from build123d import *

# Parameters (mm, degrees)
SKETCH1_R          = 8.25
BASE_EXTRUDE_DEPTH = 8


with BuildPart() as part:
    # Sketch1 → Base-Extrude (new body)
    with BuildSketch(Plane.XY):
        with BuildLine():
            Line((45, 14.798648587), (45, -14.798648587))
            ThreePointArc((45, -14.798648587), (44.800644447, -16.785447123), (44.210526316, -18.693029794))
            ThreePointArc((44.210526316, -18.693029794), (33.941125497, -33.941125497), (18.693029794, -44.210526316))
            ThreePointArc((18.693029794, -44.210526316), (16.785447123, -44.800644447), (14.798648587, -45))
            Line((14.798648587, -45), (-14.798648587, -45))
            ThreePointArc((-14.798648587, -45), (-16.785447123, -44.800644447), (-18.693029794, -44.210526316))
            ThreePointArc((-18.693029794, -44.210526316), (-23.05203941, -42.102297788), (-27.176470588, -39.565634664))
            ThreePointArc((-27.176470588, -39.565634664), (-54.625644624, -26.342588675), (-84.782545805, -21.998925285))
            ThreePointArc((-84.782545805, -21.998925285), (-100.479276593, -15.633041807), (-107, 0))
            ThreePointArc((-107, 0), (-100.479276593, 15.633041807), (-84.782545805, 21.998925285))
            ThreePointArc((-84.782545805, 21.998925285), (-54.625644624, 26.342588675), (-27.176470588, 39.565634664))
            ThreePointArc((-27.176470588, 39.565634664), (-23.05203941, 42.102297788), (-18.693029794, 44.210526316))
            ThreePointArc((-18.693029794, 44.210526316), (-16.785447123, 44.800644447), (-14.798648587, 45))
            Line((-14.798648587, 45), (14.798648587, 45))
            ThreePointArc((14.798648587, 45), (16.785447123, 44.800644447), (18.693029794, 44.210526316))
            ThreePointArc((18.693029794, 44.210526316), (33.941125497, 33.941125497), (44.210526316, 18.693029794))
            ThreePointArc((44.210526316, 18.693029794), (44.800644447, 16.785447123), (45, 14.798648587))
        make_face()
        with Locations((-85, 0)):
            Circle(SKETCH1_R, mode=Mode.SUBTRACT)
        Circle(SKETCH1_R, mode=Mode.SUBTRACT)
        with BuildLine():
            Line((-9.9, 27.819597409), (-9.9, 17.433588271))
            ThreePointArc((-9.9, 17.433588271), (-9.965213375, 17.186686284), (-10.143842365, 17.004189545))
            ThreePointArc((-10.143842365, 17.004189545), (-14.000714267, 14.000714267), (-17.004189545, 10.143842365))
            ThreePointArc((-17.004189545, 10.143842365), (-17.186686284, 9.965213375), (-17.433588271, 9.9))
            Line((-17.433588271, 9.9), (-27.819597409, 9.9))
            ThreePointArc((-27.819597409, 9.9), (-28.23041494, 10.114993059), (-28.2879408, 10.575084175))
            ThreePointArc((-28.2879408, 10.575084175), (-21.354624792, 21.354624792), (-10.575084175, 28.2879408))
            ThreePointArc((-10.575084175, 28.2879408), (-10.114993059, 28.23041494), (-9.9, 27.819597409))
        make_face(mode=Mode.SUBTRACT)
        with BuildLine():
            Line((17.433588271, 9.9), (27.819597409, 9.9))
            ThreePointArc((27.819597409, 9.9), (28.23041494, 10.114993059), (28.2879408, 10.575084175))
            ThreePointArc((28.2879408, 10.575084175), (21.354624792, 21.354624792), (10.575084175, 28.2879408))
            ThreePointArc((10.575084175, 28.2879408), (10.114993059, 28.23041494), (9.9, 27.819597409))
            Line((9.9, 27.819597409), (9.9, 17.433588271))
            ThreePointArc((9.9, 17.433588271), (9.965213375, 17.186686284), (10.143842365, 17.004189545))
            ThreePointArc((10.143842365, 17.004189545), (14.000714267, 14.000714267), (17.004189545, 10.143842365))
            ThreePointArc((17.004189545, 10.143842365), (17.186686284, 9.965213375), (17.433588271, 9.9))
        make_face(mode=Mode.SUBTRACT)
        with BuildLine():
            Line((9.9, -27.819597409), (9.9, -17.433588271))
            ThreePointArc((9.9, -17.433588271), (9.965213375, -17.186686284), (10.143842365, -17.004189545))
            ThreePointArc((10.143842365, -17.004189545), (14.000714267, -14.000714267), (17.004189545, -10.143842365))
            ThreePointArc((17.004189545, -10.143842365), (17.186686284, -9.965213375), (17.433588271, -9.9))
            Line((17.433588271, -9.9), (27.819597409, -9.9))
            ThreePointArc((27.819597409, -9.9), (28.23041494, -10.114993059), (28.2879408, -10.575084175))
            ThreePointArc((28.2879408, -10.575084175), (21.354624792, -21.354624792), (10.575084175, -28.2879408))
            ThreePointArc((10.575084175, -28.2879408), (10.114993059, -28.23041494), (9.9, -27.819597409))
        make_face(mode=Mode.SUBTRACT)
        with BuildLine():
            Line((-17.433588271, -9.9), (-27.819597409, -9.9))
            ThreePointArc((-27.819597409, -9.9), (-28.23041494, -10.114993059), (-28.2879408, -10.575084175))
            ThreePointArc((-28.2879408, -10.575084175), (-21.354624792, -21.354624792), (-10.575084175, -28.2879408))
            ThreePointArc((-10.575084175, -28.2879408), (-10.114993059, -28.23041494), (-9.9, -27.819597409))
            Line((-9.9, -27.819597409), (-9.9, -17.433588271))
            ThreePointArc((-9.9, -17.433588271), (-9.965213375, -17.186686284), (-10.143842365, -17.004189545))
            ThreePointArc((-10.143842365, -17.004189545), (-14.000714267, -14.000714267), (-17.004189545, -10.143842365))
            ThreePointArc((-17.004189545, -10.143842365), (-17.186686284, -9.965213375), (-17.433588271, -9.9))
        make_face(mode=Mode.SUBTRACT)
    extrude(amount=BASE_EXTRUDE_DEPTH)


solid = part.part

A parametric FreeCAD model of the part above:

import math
import FreeCAD as App
import Part
import Sketcher

V = App.Vector
Q = App.Units.Quantity

doc = App.newDocument("Part")
body = doc.addObject("PartDesign::Body", "Body")

# Sketch on XY plane
sketch1 = doc.addObject("Sketcher::SketchObject", "Sketch")
body.addObject(sketch1)
sketch1.AttachmentSupport = (doc.XY_Plane, [""])
sketch1.MapMode = "FlatFace"
sketch1.addGeometry([
    Part.LineSegment(V(45, -14.798649, 0), V(45, 14.798649, 0)),  # 0
    Part.ArcOfCircle(Part.Circle(V(35, 14.798649, 0), V(0, 0, 1), 10), math.radians(0), math.radians(22.919542)),  # 1
    Part.ArcOfCircle(Part.Circle(V(0, 0, 0), V(0, 0, 1), 48), math.radians(22.919542), math.radians(67.080458)),  # 2
    Part.ArcOfCircle(Part.Circle(V(14.798649, 35, 0), V(0, 0, 1), 10), math.radians(67.080458), math.radians(90)),  # 3
    Part.LineSegment(V(14.798649, 45, 0), V(-14.798649, 45, 0)),  # 4
    Part.ArcOfCircle(Part.Circle(V(-14.798649, 35, 0), V(0, 0, 1), 10), math.radians(90), math.radians(112.919542)),  # 5
    Part.ArcOfCircle(Part.Circle(V(0, 0, 0), V(0, 0, 1), 48), math.radians(112.919542), math.radians(124.484027)),  # 6
    Part.ArcOfCircle(Part.Circle(V(-83.794118, 121.99404, 0), V(0, 0, 1), 100), math.radians(-90.566337), math.radians(-55.515973)),  # 7
    Part.ArcOfCircle(Part.Circle(V(-85, 0, 0), V(0, 0, 1), 22), math.radians(89.433663), math.radians(180)),  # 8
    Part.ArcOfCircle(Part.Circle(V(-85, 0, 0), V(0, 0, 1), 22), math.radians(-180), math.radians(-89.433663)),  # 9
    Part.ArcOfCircle(Part.Circle(V(-83.794118, -121.99404, 0), V(0, 0, 1), 100), math.radians(55.515973), math.radians(90.566337)),  # 10
    Part.ArcOfCircle(Part.Circle(V(0, 0, 0), V(0, 0, 1), 48), math.radians(-124.484027), math.radians(-112.919542)),  # 11
    Part.ArcOfCircle(Part.Circle(V(-14.798649, -35, 0), V(0, 0, 1), 10), math.radians(-112.919542), math.radians(-90)),  # 12
    Part.LineSegment(V(-14.798649, -45, 0), V(14.798649, -45, 0)),  # 13
    Part.ArcOfCircle(Part.Circle(V(14.798649, -35, 0), V(0, 0, 1), 10), math.radians(-90), math.radians(-67.080458)),  # 14
    Part.ArcOfCircle(Part.Circle(V(0, 0, 0), V(0, 0, 1), 48), math.radians(-67.080458), math.radians(-22.919542)),  # 15
    Part.ArcOfCircle(Part.Circle(V(35, -14.798649, 0), V(0, 0, 1), 10), math.radians(-22.919542), math.radians(0)),  # 16
    Part.LineSegment(V(9.9, -27.819597, 0), V(9.9, -17.433588, 0)),  # 17
    Part.ArcOfCircle(Part.Circle(V(10.4, -17.433588, 0), V(0, 0, 1), 0.5), math.radians(120.818172), math.radians(180)),  # 18
    Part.ArcOfCircle(Part.Circle(V(0, 0, 0), V(0, 0, 1), 19.8), math.radians(-59.181828), math.radians(-30.818172)),  # 19
    Part.ArcOfCircle(Part.Circle(V(17.433588, -10.4, 0), V(0, 0, 1), 0.5), math.radians(90), math.radians(149.181828)),  # 20
    Part.LineSegment(V(17.433588, -9.9, 0), V(27.819597, -9.9, 0)),  # 21
    Part.ArcOfCircle(Part.Circle(V(27.819597, -10.4, 0), V(0, 0, 1), 0.5), math.radians(-20.497612), math.radians(90)),  # 22
    Part.ArcOfCircle(Part.Circle(V(0, 0, 0), V(0, 0, 1), 30.2), math.radians(-69.502387), math.radians(-20.497613)),  # 23
    Part.ArcOfCircle(Part.Circle(V(10.4, -27.819597, 0), V(0, 0, 1), 0.5), math.radians(180), math.radians(290.497612)),  # 24
    Part.ArcOfCircle(Part.Circle(V(-17.433588, -10.4, 0), V(0, 0, 1), 0.5), math.radians(30.818172), math.radians(90)),  # 25
    Part.ArcOfCircle(Part.Circle(V(0, 0, 0), V(0, 0, 1), 19.8), math.radians(-149.181828), math.radians(-120.818172)),  # 26
    Part.ArcOfCircle(Part.Circle(V(-10.4, -17.433588, 0), V(0, 0, 1), 0.5), math.radians(0), math.radians(59.181828)),  # 27
    Part.LineSegment(V(-9.9, -17.433588, 0), V(-9.9, -27.819597, 0)),  # 28
    Part.ArcOfCircle(Part.Circle(V(-10.4, -27.819597, 0), V(0, 0, 1), 0.5), math.radians(-110.497612), math.radians(0)),  # 29
    Part.ArcOfCircle(Part.Circle(V(0, 0, 0), V(0, 0, 1), 30.2), math.radians(-159.502387), math.radians(-110.497613)),  # 30
    Part.ArcOfCircle(Part.Circle(V(-27.819597, -10.4, 0), V(0, 0, 1), 0.5), math.radians(90), math.radians(200.497612)),  # 31
    Part.LineSegment(V(-27.819597, -9.9, 0), V(-17.433588, -9.9, 0)),  # 32
    Part.Circle(V(0, 0, 0), V(0, 0, 1), 8.25),  # 33
    Part.Circle(V(-85, 0, 0), V(0, 0, 1), 8.25),  # 34
    Part.ArcOfCircle(Part.Circle(V(17.433588, 10.4, 0), V(0, 0, 1), 0.5), math.radians(-149.181828), math.radians(-90)),  # 35
    Part.ArcOfCircle(Part.Circle(V(0, 0, 0), V(0, 0, 1), 19.8), math.radians(30.818172), math.radians(59.181828)),  # 36
    Part.ArcOfCircle(Part.Circle(V(10.4, 17.433588, 0), V(0, 0, 1), 0.5), math.radians(180), math.radians(239.181828)),  # 37
    Part.LineSegment(V(9.9, 17.433588, 0), V(9.9, 27.819597, 0)),  # 38
    Part.ArcOfCircle(Part.Circle(V(10.4, 27.819597, 0), V(0, 0, 1), 0.5), math.radians(69.502388), math.radians(180)),  # 39
    Part.ArcOfCircle(Part.Circle(V(0, 0, 0), V(0, 0, 1), 30.2), math.radians(20.497613), math.radians(69.502387)),  # 40
    Part.ArcOfCircle(Part.Circle(V(27.819597, 10.4, 0), V(0, 0, 1), 0.5), math.radians(-90), math.radians(20.497612)),  # 41
    Part.LineSegment(V(27.819597, 9.9, 0), V(17.433588, 9.9, 0)),  # 42
    Part.LineSegment(V(-9.9, 27.819597, 0), V(-9.9, 17.433588, 0)),  # 43
    Part.ArcOfCircle(Part.Circle(V(-10.4, 17.433588, 0), V(0, 0, 1), 0.5), math.radians(-59.181828), math.radians(0)),  # 44
    Part.ArcOfCircle(Part.Circle(V(0, 0, 0), V(0, 0, 1), 19.8), math.radians(120.818172), math.radians(149.181828)),  # 45
    Part.ArcOfCircle(Part.Circle(V(-17.433588, 10.4, 0), V(0, 0, 1), 0.5), math.radians(-90), math.radians(-30.818172)),  # 46
    Part.LineSegment(V(-17.433588, 9.9, 0), V(-27.819597, 9.9, 0)),  # 47
    Part.ArcOfCircle(Part.Circle(V(-27.819597, 10.4, 0), V(0, 0, 1), 0.5), math.radians(159.502388), math.radians(270)),  # 48
    Part.ArcOfCircle(Part.Circle(V(0, 0, 0), V(0, 0, 1), 30.2), math.radians(110.497613), math.radians(159.502387)),  # 49
    Part.ArcOfCircle(Part.Circle(V(-10.4, 27.819597, 0), V(0, 0, 1), 0.5), math.radians(0), math.radians(110.497612)),  # 50
], False)
sketch1.addConstraint([
    Sketcher.Constraint("Tangent", 0, 2, 1, 1),
    Sketcher.Constraint("Tangent", 1, 2, 2, 1),
    Sketcher.Constraint("Tangent", 2, 2, 3, 1),
    Sketcher.Constraint("Tangent", 3, 2, 4, 1),
    Sketcher.Constraint("Tangent", 4, 2, 5, 1),
    Sketcher.Constraint("Tangent", 5, 2, 6, 1),
    Sketcher.Constraint("Tangent", 6, 2, 7, 2),
    Sketcher.Constraint("Tangent", 7, 1, 8, 1),
    Sketcher.Constraint("Tangent", 8, 2, 9, 1),
    Sketcher.Constraint("Tangent", 9, 2, 10, 2),
    Sketcher.Constraint("Tangent", 10, 1, 11, 1),
    Sketcher.Constraint("Tangent", 11, 2, 12, 1),
    Sketcher.Constraint("Tangent", 12, 2, 13, 1),
    Sketcher.Constraint("Tangent", 13, 2, 14, 1),
    Sketcher.Constraint("Tangent", 14, 2, 15, 1),
    Sketcher.Constraint("Tangent", 15, 2, 16, 1),
    Sketcher.Constraint("Tangent", 16, 2, 0, 1),
    Sketcher.Constraint("Tangent", 17, 2, 18, 2),
    Sketcher.Constraint("Tangent", 18, 1, 19, 1),
    Sketcher.Constraint("Tangent", 19, 2, 20, 2),
    Sketcher.Constraint("Tangent", 20, 1, 21, 1),
    Sketcher.Constraint("Tangent", 21, 2, 22, 2),
    Sketcher.Constraint("Tangent", 22, 1, 23, 2),
    Sketcher.Constraint("Tangent", 23, 1, 24, 2),
    Sketcher.Constraint("Tangent", 24, 1, 17, 1),
    Sketcher.Constraint("Tangent", 25, 1, 26, 1),
    Sketcher.Constraint("Tangent", 26, 2, 27, 2),
    Sketcher.Constraint("Tangent", 27, 1, 28, 1),
    Sketcher.Constraint("Tangent", 28, 2, 29, 2),
    Sketcher.Constraint("Tangent", 29, 1, 30, 2),
    Sketcher.Constraint("Tangent", 30, 1, 31, 2),
    Sketcher.Constraint("Tangent", 31, 1, 32, 1),
    Sketcher.Constraint("Tangent", 32, 2, 25, 2),
    Sketcher.Constraint("Tangent", 35, 1, 36, 1),
    Sketcher.Constraint("Tangent", 36, 2, 37, 2),
    Sketcher.Constraint("Tangent", 37, 1, 38, 1),
    Sketcher.Constraint("Tangent", 38, 2, 39, 2),
    Sketcher.Constraint("Tangent", 39, 1, 40, 2),
    Sketcher.Constraint("Tangent", 40, 1, 41, 2),
    Sketcher.Constraint("Tangent", 41, 1, 42, 1),
    Sketcher.Constraint("Tangent", 42, 2, 35, 2),
    Sketcher.Constraint("Tangent", 43, 2, 44, 2),
    Sketcher.Constraint("Tangent", 44, 1, 45, 1),
    Sketcher.Constraint("Tangent", 45, 2, 46, 2),
    Sketcher.Constraint("Tangent", 46, 1, 47, 1),
    Sketcher.Constraint("Tangent", 47, 2, 48, 2),
    Sketcher.Constraint("Tangent", 48, 1, 49, 2),
    Sketcher.Constraint("Tangent", 49, 1, 50, 2),
    Sketcher.Constraint("Tangent", 50, 1, 43, 1),
    Sketcher.Constraint("Vertical", 0),
    Sketcher.Constraint("Horizontal", 4),
    Sketcher.Constraint("Horizontal", 13),
    Sketcher.Constraint("Vertical", 17),
    Sketcher.Constraint("Horizontal", 21),
    Sketcher.Constraint("Vertical", 28),
    Sketcher.Constraint("Horizontal", 32),
    Sketcher.Constraint("Vertical", 38),
    Sketcher.Constraint("Horizontal", 42),
    Sketcher.Constraint("Vertical", 43),
    Sketcher.Constraint("Horizontal", 47),
    Sketcher.Constraint("Coincident", 2, 3, -1, 1),
    Sketcher.Constraint("Coincident", 6, 3, -1, 1),
    Sketcher.Constraint("Coincident", 11, 3, -1, 1),
    Sketcher.Constraint("Coincident", 15, 3, -1, 1),
    Sketcher.Constraint("Coincident", 19, 3, -1, 1),
    Sketcher.Constraint("Coincident", 23, 3, -1, 1),
    Sketcher.Constraint("Coincident", 26, 3, -1, 1),
    Sketcher.Constraint("Coincident", 30, 3, -1, 1),
    Sketcher.Constraint("Coincident", 33, 3, -1, 1),
    Sketcher.Constraint("Coincident", 36, 3, -1, 1),
    Sketcher.Constraint("Coincident", 40, 3, -1, 1),
    Sketcher.Constraint("Coincident", 45, 3, -1, 1),
    Sketcher.Constraint("Coincident", 49, 3, -1, 1),
    Sketcher.Constraint("Coincident", 34, 3, 8, 3),
    Sketcher.Constraint("Equal", 1, 3),
    Sketcher.Constraint("Equal", 3, 5),
    Sketcher.Constraint("Equal", 2, 6),
    Sketcher.Constraint("Equal", 8, 9),
    Sketcher.Constraint("Equal", 7, 10),
    Sketcher.Constraint("Equal", 6, 11),
    Sketcher.Constraint("Equal", 5, 12),
    Sketcher.Constraint("Equal", 12, 14),
    Sketcher.Constraint("Equal", 11, 15),
    Sketcher.Constraint("Equal", 14, 16),
    Sketcher.Constraint("Equal", 18, 20),
    Sketcher.Constraint("Equal", 20, 22),
    Sketcher.Constraint("Equal", 22, 24),
    Sketcher.Constraint("Equal", 24, 25),
    Sketcher.Constraint("Equal", 19, 26),
    Sketcher.Constraint("Equal", 25, 27),
    Sketcher.Constraint("Equal", 27, 29),
    Sketcher.Constraint("Equal", 23, 30),
    Sketcher.Constraint("Equal", 29, 31),
    Sketcher.Constraint("Equal", 33, 34),
    Sketcher.Constraint("Equal", 31, 35),
    Sketcher.Constraint("Equal", 26, 36),
    Sketcher.Constraint("Equal", 35, 37),
    Sketcher.Constraint("Equal", 37, 39),
    Sketcher.Constraint("Equal", 30, 40),
    Sketcher.Constraint("Equal", 39, 41),
    Sketcher.Constraint("Equal", 41, 44),
    Sketcher.Constraint("Equal", 36, 45),
    Sketcher.Constraint("Equal", 44, 46),
    Sketcher.Constraint("Equal", 46, 48),
    Sketcher.Constraint("Equal", 40, 49),
    Sketcher.Constraint("Equal", 48, 50),
    Sketcher.Constraint("PointOnObject", 8, 3, -1),
    Sketcher.Constraint("PointOnObject", 8, 2, -1),
    Sketcher.Constraint("Horizontal", 22, 3, 25, 3),
    Sketcher.Constraint("Horizontal", 18, 3, 27, 3),
    Sketcher.Constraint("Horizontal", 37, 3, 44, 3),
    Sketcher.Constraint("Horizontal", 41, 3, 46, 3),
    Sketcher.Constraint("Vertical", 5, 3, 12, 3),
    Sketcher.Constraint("Vertical", 20, 3, 35, 3),
    Sketcher.Constraint("Vertical", 24, 3, 37, 3),
    Sketcher.Constraint("Equal", 13, 0),
    Sketcher.Constraint("Equal", 47, 17),
    Sketcher.Constraint("Radius", 1, Q("10 mm")),
    Sketcher.Constraint("Radius", 2, Q("48 mm")),
    Sketcher.Constraint("Radius", 7, Q("100 mm")),
    Sketcher.Constraint("Radius", 8, Q("22 mm")),
    Sketcher.Constraint("Diameter", 33, Q("16.5 mm")),
    Sketcher.Constraint("Radius", 18, Q("0.5 mm")),
    Sketcher.Constraint("Radius", 19, Q("19.8 mm")),
    Sketcher.Constraint("Radius", 23, Q("30.2 mm")),
    Sketcher.Constraint("DistanceX", -1, 1, 1, 3, Q("35 mm")),
    Sketcher.Constraint("DistanceX", 8, 3, -1, 1, Q("85 mm")),
    Sketcher.Constraint("DistanceX", -1, 1, 18, 3, Q("10.4 mm")),
])
pad1 = doc.addObject("PartDesign::Pad", "Pad")
body.addObject(pad1)
pad1.Profile = sketch1
pad1.Length = 8

doc.recompute()
